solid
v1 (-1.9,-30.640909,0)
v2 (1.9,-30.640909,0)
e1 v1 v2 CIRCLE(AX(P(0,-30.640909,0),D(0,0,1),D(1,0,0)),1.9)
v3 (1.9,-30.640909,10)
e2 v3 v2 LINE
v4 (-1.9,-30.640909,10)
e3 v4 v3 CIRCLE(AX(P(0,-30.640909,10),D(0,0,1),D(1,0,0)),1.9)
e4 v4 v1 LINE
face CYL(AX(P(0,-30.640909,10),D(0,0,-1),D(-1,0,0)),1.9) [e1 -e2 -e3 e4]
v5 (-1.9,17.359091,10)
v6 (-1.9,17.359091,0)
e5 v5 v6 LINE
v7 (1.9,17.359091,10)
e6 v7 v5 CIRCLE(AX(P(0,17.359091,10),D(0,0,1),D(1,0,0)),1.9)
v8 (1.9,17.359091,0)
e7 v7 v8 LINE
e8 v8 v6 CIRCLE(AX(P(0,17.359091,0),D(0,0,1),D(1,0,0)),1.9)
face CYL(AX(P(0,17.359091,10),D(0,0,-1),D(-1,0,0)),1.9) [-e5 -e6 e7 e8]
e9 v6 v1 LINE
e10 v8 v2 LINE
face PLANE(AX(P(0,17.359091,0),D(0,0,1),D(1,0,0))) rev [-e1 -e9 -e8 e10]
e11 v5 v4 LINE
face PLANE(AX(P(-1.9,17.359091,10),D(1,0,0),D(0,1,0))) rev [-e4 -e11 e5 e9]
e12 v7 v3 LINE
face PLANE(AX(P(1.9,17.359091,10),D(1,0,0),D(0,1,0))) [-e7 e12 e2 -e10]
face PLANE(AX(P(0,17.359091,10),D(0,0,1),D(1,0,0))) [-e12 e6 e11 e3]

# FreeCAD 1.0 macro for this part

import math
import FreeCAD as App
import Part
import Sketcher

V = App.Vector
Q = App.Units.Quantity

doc = App.newDocument("Part")
params = doc.addObject("Spreadsheet::Sheet", "Params")
for row, (alias, value) in enumerate([
    ("sketch1_radius", "1.9 mm"),
    ("sketch1_height", "48 mm"),
    ("pad1_length", "10 mm"),
], start=1):
    params.set(f"A{row}", alias)
    params.set(f"B{row}", "=" + value)
    params.setAlias(f"B{row}", alias)

body = doc.addObject("PartDesign::Body", "Body")

# Sketch on XY plane
sketch1 = doc.addObject("Sketcher::SketchObject", "Sketch")
body.addObject(sketch1)
sketch1.AttachmentSupport = (doc.XY_Plane, [""])
sketch1.MapMode = "FlatFace"
sketch1.addGeometry(Part.LineSegment(V(1.9, -30.640909, 0), V(1.9, 17.359091, 0)), False)
sketch1.addGeometry(Part.ArcOfCircle(Part.Circle(V(0, 17.359091, 0), V(0, 0, 1), 1.9), math.radians(0), math.radians(180)), False)
sketch1.addGeometry(Part.LineSegment(V(-1.9, 17.359091, 0), V(-1.9, -30.640909, 0)), False)
sketch1.addGeometry(Part.ArcOfCircle(Part.Circle(V(0, -30.640909, 0), V(0, 0, 1), 1.9), math.radians(180), math.radians(360)), False)
sketch1.addConstraint(Sketcher.Constraint("Tangent", 0, 2, 1, 1))
sketch1.addConstraint(Sketcher.Constraint("Tangent", 1, 2, 2, 1))
sketch1.addConstraint(Sketcher.Constraint("Tangent", 2, 2, 3, 1))
sketch1.addConstraint(Sketcher.Constraint("Tangent", 3, 2, 0, 1))
sketch1.addConstraint(Sketcher.Constraint("Vertical", 0))
sketch1.addConstraint(Sketcher.Constraint("Vertical", 2))
sketch1.addConstraint(Sketcher.Constraint("PointOnObject", 1, 3, -2))
sketch1.addConstraint(Sketcher.Constraint("Radius", 1, Q("1.9 mm")))
sketch1.addConstraint(Sketcher.Constraint("DistanceY", 0, 1, 0, 2, Q("48 mm")))
sketch1.addConstraint(Sketcher.Constraint("DistanceY", -1, 1, 1, 3, Q("17.359091 mm")))
sketch1.setExpression("Constraints[7]", "Params.sketch1_radius")
sketch1.setExpression("Constraints[8]", "Params.sketch1_height")
pad1 = doc.addObject("PartDesign::Pad", "Pad")
body.addObject(pad1)
pad1.Profile = sketch1
pad1.setExpression("Length", "Params.pad1_length")

doc.recompute()
